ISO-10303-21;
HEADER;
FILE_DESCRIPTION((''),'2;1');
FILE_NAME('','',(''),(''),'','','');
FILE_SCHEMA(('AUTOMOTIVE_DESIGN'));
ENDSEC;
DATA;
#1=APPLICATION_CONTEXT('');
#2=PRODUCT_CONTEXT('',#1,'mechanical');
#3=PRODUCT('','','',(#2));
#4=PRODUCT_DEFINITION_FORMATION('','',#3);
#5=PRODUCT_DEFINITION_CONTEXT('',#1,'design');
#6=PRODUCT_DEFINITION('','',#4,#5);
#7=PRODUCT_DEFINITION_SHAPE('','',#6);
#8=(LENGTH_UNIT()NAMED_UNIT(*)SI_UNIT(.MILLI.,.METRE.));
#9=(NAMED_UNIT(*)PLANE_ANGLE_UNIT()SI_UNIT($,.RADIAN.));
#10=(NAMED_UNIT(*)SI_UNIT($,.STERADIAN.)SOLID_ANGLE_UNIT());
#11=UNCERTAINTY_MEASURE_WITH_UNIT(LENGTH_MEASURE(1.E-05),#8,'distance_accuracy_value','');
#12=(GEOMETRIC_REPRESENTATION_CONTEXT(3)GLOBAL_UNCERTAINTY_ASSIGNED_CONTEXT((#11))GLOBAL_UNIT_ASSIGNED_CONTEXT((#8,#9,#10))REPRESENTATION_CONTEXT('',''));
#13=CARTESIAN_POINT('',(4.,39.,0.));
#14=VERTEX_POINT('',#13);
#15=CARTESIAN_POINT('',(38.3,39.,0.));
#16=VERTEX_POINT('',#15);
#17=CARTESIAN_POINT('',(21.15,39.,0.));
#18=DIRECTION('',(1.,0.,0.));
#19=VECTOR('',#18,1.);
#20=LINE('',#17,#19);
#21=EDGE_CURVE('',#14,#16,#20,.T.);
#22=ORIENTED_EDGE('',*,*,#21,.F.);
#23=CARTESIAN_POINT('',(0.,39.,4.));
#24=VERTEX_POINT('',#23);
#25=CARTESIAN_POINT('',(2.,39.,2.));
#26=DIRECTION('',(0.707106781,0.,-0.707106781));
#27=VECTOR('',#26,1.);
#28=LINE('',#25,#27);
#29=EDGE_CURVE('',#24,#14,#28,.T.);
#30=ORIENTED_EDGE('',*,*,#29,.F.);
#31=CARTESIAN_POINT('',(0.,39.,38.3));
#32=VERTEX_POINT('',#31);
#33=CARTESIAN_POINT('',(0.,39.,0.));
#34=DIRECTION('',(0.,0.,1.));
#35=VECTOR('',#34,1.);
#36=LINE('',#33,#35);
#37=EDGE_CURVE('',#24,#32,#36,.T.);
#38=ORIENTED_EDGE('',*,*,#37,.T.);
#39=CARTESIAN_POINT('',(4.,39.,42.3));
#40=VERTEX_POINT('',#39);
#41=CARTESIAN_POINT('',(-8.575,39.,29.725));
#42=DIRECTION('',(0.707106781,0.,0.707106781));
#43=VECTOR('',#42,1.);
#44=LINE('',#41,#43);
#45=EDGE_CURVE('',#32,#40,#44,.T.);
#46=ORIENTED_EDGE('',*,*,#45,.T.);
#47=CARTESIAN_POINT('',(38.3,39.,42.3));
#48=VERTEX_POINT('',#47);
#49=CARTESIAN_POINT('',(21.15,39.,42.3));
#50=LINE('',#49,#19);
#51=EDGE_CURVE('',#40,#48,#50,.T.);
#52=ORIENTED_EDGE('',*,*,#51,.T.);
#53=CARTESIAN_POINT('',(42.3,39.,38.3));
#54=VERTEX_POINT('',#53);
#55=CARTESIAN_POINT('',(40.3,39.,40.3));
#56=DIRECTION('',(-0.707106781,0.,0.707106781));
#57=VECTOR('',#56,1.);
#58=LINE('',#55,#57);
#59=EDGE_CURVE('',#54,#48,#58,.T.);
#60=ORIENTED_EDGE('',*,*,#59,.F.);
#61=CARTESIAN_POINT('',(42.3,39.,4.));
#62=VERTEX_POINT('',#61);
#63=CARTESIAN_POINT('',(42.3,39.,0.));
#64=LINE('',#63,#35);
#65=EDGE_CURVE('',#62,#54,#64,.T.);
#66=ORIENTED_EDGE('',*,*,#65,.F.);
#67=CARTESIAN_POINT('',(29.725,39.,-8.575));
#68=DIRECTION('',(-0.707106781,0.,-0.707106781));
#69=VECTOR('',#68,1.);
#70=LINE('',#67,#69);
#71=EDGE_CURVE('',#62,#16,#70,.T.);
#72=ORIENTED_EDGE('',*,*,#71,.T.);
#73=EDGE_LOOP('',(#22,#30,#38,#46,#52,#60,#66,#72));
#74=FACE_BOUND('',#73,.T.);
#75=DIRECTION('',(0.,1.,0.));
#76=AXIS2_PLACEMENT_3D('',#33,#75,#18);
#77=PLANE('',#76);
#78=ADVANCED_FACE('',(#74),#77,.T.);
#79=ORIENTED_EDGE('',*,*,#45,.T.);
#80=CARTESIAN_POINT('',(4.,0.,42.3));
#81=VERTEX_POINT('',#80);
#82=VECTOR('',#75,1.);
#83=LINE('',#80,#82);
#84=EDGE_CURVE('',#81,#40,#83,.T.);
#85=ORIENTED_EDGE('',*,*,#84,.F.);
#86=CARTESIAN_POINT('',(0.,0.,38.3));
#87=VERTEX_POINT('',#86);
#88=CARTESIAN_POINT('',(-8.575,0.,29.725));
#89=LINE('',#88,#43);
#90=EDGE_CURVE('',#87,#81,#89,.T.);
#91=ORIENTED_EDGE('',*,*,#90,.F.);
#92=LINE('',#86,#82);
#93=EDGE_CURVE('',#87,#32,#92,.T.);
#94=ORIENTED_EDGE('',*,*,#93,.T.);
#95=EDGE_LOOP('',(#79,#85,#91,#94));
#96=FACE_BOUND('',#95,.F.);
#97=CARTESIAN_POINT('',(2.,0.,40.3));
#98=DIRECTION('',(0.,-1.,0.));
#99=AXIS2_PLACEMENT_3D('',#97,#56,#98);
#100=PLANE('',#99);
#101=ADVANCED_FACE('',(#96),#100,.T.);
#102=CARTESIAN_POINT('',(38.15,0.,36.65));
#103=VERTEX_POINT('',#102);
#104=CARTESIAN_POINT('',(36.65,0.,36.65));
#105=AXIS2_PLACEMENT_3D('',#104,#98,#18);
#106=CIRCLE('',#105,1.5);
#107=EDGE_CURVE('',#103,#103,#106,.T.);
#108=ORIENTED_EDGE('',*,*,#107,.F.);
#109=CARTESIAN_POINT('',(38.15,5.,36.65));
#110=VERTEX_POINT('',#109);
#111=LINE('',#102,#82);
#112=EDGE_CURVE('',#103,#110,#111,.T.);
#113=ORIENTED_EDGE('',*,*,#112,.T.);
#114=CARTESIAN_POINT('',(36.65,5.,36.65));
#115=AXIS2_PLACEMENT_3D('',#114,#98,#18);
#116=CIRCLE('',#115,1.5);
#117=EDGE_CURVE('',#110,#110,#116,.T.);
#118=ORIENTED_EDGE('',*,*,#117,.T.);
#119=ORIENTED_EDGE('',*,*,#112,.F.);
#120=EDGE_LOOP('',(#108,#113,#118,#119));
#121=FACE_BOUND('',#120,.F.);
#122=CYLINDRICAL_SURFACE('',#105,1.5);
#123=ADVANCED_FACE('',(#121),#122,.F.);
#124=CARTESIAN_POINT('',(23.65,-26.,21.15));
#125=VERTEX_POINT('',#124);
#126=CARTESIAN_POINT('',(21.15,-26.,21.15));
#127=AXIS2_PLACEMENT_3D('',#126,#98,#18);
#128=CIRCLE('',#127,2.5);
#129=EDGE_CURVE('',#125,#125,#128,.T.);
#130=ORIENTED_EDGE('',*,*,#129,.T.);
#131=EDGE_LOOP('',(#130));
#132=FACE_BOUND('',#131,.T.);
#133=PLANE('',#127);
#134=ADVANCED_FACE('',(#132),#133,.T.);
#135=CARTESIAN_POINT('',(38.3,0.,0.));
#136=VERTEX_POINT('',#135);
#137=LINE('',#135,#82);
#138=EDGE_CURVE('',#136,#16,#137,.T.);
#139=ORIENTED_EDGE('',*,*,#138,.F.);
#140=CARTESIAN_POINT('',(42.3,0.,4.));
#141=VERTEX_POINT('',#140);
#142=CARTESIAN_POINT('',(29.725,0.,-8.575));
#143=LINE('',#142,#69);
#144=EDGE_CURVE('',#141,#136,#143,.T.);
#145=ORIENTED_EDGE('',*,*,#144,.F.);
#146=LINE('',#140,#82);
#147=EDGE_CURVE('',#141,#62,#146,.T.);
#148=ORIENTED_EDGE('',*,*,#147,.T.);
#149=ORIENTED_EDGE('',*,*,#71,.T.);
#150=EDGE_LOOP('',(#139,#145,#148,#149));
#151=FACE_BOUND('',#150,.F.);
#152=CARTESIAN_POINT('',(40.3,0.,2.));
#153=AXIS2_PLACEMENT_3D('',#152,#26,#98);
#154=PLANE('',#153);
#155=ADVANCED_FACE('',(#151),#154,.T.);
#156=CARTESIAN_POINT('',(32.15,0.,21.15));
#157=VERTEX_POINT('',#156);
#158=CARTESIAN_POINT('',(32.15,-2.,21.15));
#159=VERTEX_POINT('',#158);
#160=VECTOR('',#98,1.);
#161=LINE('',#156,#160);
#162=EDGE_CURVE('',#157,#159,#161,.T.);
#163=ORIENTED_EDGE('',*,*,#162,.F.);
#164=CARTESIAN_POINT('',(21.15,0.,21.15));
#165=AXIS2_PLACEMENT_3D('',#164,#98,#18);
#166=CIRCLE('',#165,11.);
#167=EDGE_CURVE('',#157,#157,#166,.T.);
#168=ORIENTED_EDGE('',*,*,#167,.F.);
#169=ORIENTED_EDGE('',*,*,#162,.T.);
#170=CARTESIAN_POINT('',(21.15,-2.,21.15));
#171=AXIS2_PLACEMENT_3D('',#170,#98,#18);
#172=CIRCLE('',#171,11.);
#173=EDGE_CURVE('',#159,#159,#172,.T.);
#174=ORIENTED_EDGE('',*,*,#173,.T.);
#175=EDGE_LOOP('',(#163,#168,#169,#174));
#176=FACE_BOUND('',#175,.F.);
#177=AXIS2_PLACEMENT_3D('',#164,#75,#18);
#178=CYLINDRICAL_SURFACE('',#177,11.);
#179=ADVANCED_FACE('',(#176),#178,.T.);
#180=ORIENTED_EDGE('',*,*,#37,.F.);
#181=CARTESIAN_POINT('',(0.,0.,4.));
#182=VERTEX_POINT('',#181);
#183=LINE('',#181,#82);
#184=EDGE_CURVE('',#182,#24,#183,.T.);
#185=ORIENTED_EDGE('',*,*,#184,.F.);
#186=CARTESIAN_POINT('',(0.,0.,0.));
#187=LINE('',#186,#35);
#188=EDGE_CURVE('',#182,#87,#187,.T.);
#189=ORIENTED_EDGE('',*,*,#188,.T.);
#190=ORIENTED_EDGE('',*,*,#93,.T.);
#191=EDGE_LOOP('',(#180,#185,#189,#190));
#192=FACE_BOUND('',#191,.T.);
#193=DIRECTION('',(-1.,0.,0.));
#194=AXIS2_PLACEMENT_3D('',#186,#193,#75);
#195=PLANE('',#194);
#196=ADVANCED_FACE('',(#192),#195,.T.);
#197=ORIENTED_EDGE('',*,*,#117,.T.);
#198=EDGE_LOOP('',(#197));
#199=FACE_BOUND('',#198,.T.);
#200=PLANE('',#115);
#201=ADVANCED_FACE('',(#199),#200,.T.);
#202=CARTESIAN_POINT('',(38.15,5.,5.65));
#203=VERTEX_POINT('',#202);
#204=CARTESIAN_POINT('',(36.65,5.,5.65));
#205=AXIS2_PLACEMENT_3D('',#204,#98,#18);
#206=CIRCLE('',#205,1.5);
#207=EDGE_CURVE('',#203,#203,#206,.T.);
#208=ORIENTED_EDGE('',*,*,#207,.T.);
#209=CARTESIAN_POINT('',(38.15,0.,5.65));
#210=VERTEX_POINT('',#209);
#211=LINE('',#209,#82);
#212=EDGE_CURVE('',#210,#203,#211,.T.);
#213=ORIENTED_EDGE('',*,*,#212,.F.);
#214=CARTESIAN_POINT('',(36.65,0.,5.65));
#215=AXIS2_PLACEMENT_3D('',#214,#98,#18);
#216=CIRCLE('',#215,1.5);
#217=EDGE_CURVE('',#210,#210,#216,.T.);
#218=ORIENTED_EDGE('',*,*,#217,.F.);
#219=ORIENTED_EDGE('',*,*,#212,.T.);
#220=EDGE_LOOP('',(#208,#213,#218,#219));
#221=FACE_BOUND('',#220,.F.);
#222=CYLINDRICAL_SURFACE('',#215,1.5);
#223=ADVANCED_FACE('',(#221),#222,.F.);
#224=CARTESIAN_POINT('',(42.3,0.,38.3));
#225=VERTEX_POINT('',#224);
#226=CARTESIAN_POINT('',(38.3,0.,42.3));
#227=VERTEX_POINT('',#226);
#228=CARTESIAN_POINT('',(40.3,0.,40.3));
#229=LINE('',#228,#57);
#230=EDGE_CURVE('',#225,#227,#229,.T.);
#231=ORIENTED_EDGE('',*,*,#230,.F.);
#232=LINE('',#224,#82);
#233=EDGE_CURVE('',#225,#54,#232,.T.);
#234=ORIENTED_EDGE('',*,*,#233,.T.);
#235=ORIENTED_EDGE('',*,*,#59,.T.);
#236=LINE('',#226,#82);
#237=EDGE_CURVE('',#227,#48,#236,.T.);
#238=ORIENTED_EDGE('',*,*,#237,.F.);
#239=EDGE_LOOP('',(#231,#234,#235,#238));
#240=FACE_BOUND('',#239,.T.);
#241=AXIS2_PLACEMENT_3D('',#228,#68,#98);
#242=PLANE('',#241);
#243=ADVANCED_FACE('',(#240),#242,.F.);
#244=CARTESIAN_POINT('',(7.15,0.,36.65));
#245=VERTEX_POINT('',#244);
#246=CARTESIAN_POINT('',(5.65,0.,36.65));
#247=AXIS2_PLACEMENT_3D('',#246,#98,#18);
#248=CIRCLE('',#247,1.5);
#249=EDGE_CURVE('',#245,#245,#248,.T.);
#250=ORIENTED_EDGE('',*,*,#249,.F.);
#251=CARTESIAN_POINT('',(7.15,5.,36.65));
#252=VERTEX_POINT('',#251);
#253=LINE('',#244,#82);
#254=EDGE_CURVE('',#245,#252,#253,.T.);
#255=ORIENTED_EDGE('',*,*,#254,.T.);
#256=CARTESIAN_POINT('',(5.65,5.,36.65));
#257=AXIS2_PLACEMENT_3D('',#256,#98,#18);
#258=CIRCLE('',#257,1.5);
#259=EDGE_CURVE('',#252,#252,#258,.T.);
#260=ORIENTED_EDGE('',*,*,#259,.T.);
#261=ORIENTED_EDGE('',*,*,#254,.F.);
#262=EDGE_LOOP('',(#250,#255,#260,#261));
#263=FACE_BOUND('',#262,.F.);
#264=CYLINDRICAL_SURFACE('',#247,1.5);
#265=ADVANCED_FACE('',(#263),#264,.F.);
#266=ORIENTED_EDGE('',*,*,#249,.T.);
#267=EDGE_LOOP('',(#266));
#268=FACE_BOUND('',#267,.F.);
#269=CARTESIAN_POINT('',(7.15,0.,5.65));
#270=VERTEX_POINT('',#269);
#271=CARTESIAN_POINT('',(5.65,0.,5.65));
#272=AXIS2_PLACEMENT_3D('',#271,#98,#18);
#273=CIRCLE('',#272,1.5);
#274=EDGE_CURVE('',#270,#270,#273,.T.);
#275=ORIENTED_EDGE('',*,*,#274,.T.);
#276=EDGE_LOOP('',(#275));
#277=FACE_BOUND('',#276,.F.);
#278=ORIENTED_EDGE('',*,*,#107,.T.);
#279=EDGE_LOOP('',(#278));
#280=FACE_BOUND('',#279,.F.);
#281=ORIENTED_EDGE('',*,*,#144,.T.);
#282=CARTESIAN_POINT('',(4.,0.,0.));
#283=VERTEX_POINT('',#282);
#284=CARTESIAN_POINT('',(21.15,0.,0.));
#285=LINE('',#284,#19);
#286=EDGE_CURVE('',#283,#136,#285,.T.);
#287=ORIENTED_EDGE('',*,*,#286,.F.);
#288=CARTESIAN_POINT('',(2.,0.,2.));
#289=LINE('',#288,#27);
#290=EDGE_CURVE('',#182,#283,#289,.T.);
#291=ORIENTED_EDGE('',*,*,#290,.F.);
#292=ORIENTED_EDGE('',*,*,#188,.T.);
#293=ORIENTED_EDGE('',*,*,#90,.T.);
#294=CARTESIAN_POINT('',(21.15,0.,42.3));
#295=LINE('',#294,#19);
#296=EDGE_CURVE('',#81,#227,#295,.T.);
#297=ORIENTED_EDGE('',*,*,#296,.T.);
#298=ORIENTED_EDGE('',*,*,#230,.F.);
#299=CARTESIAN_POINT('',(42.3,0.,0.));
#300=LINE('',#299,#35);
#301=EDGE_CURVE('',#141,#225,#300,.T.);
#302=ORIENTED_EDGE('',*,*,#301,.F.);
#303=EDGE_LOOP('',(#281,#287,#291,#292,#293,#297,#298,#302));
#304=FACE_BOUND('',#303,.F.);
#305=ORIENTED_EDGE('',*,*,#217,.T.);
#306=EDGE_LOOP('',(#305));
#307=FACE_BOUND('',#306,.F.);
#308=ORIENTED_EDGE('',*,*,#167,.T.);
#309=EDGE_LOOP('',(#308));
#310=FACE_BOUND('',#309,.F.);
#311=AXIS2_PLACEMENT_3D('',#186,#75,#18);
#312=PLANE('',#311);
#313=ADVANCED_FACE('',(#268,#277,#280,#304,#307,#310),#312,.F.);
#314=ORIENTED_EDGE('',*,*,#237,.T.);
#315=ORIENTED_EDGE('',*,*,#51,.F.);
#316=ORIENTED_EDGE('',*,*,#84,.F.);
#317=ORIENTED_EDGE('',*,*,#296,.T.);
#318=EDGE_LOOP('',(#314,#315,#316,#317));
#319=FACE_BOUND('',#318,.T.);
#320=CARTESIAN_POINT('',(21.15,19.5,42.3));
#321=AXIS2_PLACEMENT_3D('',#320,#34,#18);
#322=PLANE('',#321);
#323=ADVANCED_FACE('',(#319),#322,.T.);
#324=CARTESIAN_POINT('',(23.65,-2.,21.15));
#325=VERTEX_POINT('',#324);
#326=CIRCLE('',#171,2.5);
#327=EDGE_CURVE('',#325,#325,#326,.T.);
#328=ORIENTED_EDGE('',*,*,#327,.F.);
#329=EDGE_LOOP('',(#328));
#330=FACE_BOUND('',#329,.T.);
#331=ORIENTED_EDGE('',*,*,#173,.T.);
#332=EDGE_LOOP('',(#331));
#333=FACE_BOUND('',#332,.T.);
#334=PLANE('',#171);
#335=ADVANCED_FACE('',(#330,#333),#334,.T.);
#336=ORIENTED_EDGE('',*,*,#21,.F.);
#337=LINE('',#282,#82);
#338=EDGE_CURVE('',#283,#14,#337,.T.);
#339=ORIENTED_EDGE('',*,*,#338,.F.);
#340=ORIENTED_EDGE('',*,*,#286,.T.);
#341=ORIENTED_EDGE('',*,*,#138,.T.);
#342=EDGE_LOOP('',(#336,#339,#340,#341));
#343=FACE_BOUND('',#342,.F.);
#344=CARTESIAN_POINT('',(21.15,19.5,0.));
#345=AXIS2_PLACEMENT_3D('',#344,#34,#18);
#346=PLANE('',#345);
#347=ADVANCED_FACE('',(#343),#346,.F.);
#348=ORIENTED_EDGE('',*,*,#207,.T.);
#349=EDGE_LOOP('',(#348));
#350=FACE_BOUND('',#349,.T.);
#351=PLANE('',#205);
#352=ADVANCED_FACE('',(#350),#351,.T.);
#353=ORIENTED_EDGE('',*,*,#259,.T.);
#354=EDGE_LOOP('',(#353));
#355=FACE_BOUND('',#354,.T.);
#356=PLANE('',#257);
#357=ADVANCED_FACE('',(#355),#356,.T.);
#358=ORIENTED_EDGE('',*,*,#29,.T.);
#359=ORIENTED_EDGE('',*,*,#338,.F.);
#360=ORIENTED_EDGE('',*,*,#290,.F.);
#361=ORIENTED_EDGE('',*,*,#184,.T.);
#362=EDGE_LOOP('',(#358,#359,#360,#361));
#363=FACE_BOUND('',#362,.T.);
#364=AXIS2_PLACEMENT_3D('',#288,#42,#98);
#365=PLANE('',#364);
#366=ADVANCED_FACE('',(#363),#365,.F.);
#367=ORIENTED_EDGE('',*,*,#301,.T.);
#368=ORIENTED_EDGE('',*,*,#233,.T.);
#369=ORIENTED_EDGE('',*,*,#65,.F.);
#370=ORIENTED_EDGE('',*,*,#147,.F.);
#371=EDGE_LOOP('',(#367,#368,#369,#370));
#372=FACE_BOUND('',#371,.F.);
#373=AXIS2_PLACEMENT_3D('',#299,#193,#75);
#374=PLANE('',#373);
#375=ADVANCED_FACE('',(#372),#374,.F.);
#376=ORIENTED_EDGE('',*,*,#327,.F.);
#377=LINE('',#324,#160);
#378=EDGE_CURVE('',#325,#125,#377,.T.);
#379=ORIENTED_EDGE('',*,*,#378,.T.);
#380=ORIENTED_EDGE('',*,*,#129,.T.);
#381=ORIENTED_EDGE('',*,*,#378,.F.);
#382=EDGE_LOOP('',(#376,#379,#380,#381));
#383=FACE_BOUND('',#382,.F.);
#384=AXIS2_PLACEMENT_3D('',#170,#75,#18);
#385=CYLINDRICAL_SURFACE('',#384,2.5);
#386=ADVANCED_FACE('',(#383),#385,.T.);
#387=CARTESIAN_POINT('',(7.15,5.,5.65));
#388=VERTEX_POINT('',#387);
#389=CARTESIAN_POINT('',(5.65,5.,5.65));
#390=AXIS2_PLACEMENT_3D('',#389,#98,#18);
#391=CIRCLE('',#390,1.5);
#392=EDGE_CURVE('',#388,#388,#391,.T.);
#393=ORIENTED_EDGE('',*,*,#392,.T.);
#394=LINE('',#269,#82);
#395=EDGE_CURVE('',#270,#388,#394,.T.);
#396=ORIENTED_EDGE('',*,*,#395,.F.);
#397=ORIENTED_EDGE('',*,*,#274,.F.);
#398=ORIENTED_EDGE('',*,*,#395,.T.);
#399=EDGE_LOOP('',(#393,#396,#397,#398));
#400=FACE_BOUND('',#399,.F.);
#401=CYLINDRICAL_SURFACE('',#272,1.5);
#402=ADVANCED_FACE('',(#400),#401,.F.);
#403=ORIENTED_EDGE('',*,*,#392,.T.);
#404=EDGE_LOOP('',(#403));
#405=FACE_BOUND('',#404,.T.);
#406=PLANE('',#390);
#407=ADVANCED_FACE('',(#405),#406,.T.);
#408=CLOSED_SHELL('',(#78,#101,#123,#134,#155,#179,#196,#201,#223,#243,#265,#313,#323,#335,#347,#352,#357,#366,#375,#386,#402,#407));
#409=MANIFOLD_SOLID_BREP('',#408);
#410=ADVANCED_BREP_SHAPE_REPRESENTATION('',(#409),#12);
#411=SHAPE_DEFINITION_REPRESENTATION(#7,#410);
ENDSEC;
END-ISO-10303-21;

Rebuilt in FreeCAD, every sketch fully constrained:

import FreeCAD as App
import Part
import Sketcher
Q = App.Units.Quantity


def edges_at(feature, points):
    """Names of the edges that pass closest to the given points."""
    edges = feature.Shape.Edges
    near = lambda p: min(range(len(edges)), key=lambda i: edges[i].distToShape(Part.Vertex(*p))[0])
    return sorted({f"Edge{near(p) + 1}" for p in points})

doc = App.newDocument("Part")
body = doc.addObject("PartDesign::Body", "Body")

# Sketch on XY plane
sketch1 = body.newObject("Sketcher::SketchObject", "Sketch")
sketch1.AttachmentSupport = (doc.getObject("XY_Plane"), [""])
sketch1.MapMode = "FlatFace"
sketch1.addGeometry(Part.LineSegment(App.Vector(0, 39, 0), App.Vector(0, 0, 0)), False)
sketch1.addGeometry(Part.LineSegment(App.Vector(0, 0, 0), App.Vector(42.3, 0, 0)), False)
sketch1.addGeometry(Part.LineSegment(App.Vector(42.3, 0, 0), App.Vector(42.3, 39, 0)), False)
sketch1.addGeometry(Part.LineSegment(App.Vector(42.3, 39, 0), App.Vector(0, 39, 0)), False)
sketch1.addConstraint(Sketcher.Constraint("Coincident", 0, 2, 1, 1))
sketch1.addConstraint(Sketcher.Constraint("Coincident", 1, 2, 2, 1))
sketch1.addConstraint(Sketcher.Constraint("Coincident", 2, 2, 3, 1))
sketch1.addConstraint(Sketcher.Constraint("Coincident", 3, 2, 0, 1))
sketch1.addConstraint(Sketcher.Constraint("Vertical", 0))
sketch1.addConstraint(Sketcher.Constraint("Horizontal", 1))
sketch1.addConstraint(Sketcher.Constraint("Vertical", 2))
sketch1.addConstraint(Sketcher.Constraint("Horizontal", 3))
sketch1.addConstraint(Sketcher.Constraint("Coincident", 0, 2, -1, 1))
sketch1.addConstraint(Sketcher.Constraint("DistanceY", 0, 2, 0, 1, Q("39 mm")))
sketch1.addConstraint(Sketcher.Constraint("DistanceX", 1, 1, 1, 2, Q("42.3 mm")))
pad1 = body.newObject("PartDesign::Pad", "Pad")
pad1.Profile = sketch1
pad1.Length = 42.3
doc.recompute()

chamfer = body.newObject("PartDesign::Chamfer", "Chamfer")
chamfer.Base = (pad1, edges_at(pad1, [
    (42.3, 19.5, 0),
    (42.3, 19.5, 42.3),
    (0, 19.5, 42.3),
    (0, 19.5, 0),
]))
chamfer.Size = 4

# Sketch on XZ plane
sketch2 = body.newObject("Sketcher::SketchObject", "Sketch001")
sketch2.AttachmentSupport = (doc.getObject("XZ_Plane"), [""])
sketch2.MapMode = "FlatFace"
sketch2.addGeometry(Part.Circle(App.Vector(5.65, 36.65, 0), App.Vector(0, 0, 1), 1.5), False)
sketch2.addGeometry(Part.Circle(App.Vector(36.65, 36.65, 0), App.Vector(0, 0, 1), 1.5), False)
sketch2.addGeometry(Part.Circle(App.Vector(5.65, 5.65, 0), App.Vector(0, 0, 1), 1.5), False)
sketch2.addGeometry(Part.Circle(App.Vector(36.65, 5.65, 0), App.Vector(0, 0, 1), 1.5), False)
sketch2.addConstraint(Sketcher.Constraint("Equal", 0, 1))
sketch2.addConstraint(Sketcher.Constraint("Equal", 1, 2))
sketch2.addConstraint(Sketcher.Constraint("Equal", 2, 3))
sketch2.addConstraint(Sketcher.Constraint("Horizontal", 0, 3, 1, 3))
sketch2.addConstraint(Sketcher.Constraint("Horizontal", 2, 3, 3, 3))
sketch2.addConstraint(Sketcher.Constraint("Vertical", 0, 3, 2, 3))
sketch2.addConstraint(Sketcher.Constraint("Vertical", 1, 3, 3, 3))
sketch2.addConstraint(Sketcher.Constraint("Diameter", 0, Q("3 mm")))
sketch2.addConstraint(Sketcher.Constraint("DistanceX", 0, 3, 1, 3, Q("31 mm")))
sketch2.addConstraint(Sketcher.Constraint("DistanceY", 2, 3, 0, 3, Q("31 mm")))
sketch2.addConstraint(Sketcher.Constraint("DistanceX", -1, 1, 0, 3, Q("5.65 mm")))
sketch2.addConstraint(Sketcher.Constraint("DistanceY", -1, 1, 0, 3, Q("36.65 mm")))
pocket1 = body.newObject("PartDesign::Pocket", "Pocket")
pocket1.Profile = sketch2
pocket1.Length = 5

# Sketch on XZ plane
sketch3 = body.newObject("Sketcher::SketchObject", "Sketch002")
sketch3.AttachmentSupport = (doc.getObject("XZ_Plane"), [""])
sketch3.MapMode = "FlatFace"
sketch3.addGeometry(Part.Circle(App.Vector(21.15, 21.15, 0), App.Vector(0, 0, 1), 11), False)
sketch3.addConstraint(Sketcher.Constraint("Diameter", 0, Q("22 mm")))
sketch3.addConstraint(Sketcher.Constraint("DistanceX", -1, 1, 0, 3, Q("21.15 mm")))
sketch3.addConstraint(Sketcher.Constraint("DistanceY", -1, 1, 0, 3, Q("21.15 mm")))
pad2 = body.newObject("PartDesign::Pad", "Pad001")
pad2.Profile = sketch3
pad2.Length = 2

# Sketch on XZ plane
sketch4 = body.newObject("Sketcher::SketchObject", "Sketch003")
sketch4.AttachmentSupport = (doc.getObject("XZ_Plane"), [""])
sketch4.MapMode = "FlatFace"
sketch4.AttachmentOffset = App.Placement(App.Vector(0, 0, 2), App.Rotation())
sketch4.addGeometry(Part.Circle(App.Vector(21.15, 21.15, 0), App.Vector(0, 0, 1), 2.5), False)
sketch4.addConstraint(Sketcher.Constraint("Diameter", 0, Q("5 mm")))
sketch4.addConstraint(Sketcher.Constraint("DistanceX", -1, 1, 0, 3, Q("21.15 mm")))
sketch4.addConstraint(Sketcher.Constraint("DistanceY", -1, 1, 0, 3, Q("21.15 mm")))
pad3 = body.newObject("PartDesign::Pad", "Pad002")
pad3.Profile = sketch4
pad3.Length = 24

doc.recompute()
